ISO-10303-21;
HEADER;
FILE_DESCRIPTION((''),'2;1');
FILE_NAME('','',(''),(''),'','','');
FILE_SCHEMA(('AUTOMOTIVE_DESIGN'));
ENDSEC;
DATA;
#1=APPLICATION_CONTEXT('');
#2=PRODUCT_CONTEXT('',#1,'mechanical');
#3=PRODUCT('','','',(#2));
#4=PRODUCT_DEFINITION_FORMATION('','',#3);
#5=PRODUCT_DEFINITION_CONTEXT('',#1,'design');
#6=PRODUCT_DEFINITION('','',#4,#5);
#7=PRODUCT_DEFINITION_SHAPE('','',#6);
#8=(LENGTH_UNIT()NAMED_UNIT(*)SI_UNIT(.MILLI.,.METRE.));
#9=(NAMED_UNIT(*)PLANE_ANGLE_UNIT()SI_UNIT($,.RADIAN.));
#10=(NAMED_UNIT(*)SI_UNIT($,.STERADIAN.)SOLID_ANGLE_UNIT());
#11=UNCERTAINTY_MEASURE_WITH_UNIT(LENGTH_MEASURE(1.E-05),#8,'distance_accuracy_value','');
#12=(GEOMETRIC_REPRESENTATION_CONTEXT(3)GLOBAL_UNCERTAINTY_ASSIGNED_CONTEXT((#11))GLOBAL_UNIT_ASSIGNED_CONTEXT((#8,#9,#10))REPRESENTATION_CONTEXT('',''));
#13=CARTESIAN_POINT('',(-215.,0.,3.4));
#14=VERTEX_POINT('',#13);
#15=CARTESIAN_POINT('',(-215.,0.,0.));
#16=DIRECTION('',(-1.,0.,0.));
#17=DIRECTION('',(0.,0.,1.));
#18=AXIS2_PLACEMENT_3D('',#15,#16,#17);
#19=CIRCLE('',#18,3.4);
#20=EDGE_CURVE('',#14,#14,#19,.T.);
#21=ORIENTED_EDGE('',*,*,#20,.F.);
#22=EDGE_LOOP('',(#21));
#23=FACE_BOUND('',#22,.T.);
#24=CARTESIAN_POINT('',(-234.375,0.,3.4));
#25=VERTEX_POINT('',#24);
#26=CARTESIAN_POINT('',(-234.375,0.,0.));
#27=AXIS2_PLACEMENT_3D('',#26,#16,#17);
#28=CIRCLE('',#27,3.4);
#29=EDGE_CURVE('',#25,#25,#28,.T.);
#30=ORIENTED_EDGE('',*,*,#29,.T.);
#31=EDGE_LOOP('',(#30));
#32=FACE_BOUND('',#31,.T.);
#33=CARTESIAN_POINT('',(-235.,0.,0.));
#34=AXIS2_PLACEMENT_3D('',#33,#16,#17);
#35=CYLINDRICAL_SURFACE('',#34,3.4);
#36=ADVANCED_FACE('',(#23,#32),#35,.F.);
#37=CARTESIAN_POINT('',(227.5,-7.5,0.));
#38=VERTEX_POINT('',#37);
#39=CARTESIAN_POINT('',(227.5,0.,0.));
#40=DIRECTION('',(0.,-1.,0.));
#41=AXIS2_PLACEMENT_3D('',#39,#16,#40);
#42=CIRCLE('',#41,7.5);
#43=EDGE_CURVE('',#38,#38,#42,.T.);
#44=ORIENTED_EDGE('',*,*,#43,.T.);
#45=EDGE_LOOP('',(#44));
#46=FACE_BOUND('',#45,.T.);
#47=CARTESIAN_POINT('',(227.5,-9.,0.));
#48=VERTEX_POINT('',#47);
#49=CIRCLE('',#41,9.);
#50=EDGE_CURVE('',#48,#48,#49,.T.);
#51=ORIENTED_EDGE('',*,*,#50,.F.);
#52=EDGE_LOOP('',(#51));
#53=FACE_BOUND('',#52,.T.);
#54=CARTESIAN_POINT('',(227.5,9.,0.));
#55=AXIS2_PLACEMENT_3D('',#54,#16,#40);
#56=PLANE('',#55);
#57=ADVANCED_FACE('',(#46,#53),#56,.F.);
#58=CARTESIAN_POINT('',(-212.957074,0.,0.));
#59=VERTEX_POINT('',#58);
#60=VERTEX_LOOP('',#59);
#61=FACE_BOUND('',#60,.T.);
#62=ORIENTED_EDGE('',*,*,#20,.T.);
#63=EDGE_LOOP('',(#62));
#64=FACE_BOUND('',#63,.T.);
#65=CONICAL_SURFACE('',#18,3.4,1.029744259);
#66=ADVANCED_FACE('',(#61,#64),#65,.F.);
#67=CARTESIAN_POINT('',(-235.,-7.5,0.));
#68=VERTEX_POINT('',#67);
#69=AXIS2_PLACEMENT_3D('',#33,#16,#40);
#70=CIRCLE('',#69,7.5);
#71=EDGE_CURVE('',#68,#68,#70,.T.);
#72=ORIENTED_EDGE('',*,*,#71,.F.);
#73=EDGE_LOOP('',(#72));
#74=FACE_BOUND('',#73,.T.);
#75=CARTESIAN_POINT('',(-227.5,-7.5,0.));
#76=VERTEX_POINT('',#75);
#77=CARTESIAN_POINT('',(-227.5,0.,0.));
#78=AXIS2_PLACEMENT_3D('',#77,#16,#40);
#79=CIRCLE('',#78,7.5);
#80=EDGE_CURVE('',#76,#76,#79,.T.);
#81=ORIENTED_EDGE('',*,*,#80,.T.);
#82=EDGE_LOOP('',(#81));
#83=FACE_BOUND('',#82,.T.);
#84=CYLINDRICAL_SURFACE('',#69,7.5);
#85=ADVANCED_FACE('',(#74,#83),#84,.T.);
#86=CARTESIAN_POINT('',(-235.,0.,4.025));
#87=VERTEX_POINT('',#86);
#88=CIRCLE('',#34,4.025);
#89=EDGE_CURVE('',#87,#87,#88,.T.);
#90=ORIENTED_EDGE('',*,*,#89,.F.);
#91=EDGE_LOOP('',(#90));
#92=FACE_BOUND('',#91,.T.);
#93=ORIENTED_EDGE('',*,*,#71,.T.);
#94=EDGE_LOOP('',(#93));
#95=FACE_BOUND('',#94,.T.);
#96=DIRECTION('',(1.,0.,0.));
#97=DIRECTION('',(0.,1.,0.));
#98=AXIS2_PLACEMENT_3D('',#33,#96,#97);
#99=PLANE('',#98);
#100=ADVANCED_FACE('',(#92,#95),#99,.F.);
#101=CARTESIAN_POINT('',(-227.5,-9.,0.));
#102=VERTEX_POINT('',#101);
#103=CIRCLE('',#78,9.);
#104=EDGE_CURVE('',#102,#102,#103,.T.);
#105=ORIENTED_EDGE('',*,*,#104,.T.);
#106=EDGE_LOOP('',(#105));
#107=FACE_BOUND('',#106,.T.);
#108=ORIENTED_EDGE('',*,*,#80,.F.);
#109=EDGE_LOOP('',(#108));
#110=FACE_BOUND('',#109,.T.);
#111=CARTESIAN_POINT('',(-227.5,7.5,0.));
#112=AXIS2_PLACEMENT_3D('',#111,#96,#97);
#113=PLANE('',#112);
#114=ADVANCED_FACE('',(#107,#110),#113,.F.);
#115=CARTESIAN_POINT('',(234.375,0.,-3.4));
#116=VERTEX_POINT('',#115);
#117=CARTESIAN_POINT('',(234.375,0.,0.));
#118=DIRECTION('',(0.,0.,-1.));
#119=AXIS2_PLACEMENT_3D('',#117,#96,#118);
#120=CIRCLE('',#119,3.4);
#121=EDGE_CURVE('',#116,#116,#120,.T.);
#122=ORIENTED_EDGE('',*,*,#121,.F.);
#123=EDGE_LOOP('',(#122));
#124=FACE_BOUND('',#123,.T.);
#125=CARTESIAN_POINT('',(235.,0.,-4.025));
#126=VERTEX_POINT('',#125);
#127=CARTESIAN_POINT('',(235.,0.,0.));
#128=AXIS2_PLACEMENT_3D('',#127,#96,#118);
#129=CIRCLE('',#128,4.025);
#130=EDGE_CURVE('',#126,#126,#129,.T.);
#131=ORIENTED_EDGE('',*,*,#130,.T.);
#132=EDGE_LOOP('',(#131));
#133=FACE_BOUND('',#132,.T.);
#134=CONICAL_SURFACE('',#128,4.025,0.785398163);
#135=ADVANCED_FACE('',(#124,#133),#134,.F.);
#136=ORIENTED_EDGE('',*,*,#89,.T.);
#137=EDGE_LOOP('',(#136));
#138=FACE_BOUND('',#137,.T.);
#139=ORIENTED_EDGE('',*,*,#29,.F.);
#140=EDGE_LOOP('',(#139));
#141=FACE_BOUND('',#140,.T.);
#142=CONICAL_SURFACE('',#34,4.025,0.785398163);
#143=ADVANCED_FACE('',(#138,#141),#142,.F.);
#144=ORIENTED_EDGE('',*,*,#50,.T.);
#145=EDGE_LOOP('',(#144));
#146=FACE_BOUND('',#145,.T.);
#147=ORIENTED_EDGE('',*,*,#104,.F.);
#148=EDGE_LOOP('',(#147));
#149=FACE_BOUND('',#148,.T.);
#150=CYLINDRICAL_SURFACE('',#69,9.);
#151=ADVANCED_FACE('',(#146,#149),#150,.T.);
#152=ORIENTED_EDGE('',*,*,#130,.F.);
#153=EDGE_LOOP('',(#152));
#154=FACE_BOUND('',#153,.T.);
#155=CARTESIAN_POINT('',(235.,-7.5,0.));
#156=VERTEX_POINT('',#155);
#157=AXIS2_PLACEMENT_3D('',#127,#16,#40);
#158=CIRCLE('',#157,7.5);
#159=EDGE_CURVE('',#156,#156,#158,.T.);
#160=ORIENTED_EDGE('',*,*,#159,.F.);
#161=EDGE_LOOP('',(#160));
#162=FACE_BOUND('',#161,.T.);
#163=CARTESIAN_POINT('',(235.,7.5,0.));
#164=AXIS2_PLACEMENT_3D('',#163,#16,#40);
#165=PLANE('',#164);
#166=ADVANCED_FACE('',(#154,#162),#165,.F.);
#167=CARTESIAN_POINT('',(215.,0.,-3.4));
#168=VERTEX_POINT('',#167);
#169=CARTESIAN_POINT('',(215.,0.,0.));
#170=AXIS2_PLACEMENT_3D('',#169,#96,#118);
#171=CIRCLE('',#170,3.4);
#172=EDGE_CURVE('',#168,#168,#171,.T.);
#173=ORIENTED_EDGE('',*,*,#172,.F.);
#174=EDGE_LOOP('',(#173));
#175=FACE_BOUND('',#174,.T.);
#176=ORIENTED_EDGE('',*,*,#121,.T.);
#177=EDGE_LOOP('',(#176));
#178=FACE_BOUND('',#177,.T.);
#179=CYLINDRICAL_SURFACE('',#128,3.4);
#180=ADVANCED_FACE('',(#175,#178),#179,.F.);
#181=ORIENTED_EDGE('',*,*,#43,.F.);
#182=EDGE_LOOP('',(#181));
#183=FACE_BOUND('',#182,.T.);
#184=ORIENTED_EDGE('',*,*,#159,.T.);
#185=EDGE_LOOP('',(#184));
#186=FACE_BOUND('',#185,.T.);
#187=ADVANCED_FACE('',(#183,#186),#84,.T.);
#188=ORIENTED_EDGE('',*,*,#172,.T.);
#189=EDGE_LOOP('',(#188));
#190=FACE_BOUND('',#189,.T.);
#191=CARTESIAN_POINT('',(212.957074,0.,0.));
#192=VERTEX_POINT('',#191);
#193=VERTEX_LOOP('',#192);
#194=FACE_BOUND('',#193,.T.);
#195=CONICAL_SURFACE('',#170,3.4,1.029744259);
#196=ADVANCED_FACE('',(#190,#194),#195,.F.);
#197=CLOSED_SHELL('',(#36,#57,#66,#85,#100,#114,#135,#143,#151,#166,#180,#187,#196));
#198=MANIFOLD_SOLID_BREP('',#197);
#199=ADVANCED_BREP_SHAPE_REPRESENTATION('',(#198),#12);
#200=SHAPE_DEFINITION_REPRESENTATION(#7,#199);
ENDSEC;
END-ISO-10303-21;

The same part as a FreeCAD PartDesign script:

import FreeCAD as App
import Part
import Sketcher

V = App.Vector
Q = App.Units.Quantity

doc = App.newDocument("Part")
body = doc.addObject("PartDesign::Body", "Body")

# Sketch on XY plane
sketch1 = doc.addObject("Sketcher::SketchObject", "Sketch")
body.addObject(sketch1)
sketch1.AttachmentSupport = (doc.XY_Plane, [""])
sketch1.MapMode = "FlatFace"
sketch1.addGeometry(Part.LineSegment(V(-235, 0, 0), V(235, 0, 0)), False)
sketch1.addGeometry(Part.LineSegment(V(235, 0, 0), V(235, 7.5, 0)), False)
sketch1.addGeometry(Part.LineSegment(V(235, 7.5, 0), V(227.5, 7.5, 0)), False)
sketch1.addGeometry(Part.LineSegment(V(227.5, 7.5, 0), V(227.5, 9, 0)), False)
sketch1.addGeometry(Part.LineSegment(V(227.5, 9, 0), V(-227.5, 9, 0)), False)
sketch1.addGeometry(Part.LineSegment(V(-227.5, 9, 0), V(-227.5, 7.5, 0)), False)
sketch1.addGeometry(Part.LineSegment(V(-227.5, 7.5, 0), V(-235, 7.5, 0)), False)
sketch1.addGeometry(Part.LineSegment(V(-235, 7.5, 0), V(-235, 0, 0)), False)
sketch1.addConstraint(Sketcher.Constraint("Coincident", 0, 2, 1, 1))
sketch1.addConstraint(Sketcher.Constraint("Coincident", 1, 2, 2, 1))
sketch1.addConstraint(Sketcher.Constraint("Coincident", 2, 2, 3, 1))
sketch1.addConstraint(Sketcher.Constraint("Coincident", 3, 2, 4, 1))
sketch1.addConstraint(Sketcher.Constraint("Coincident", 4, 2, 5, 1))
sketch1.addConstraint(Sketcher.Constraint("Coincident", 5, 2, 6, 1))
sketch1.addConstraint(Sketcher.Constraint("Coincident", 6, 2, 7, 1))
sketch1.addConstraint(Sketcher.Constraint("Coincident", 7, 2, 0, 1))
sketch1.addConstraint(Sketcher.Constraint("Horizontal", 0))
sketch1.addConstraint(Sketcher.Constraint("Vertical", 1))
sketch1.addConstraint(Sketcher.Constraint("Horizontal", 2))
sketch1.addConstraint(Sketcher.Constraint("Vertical", 3))
sketch1.addConstraint(Sketcher.Constraint("Horizontal", 4))
sketch1.addConstraint(Sketcher.Constraint("Vertical", 5))
sketch1.addConstraint(Sketcher.Constraint("Horizontal", 6))
sketch1.addConstraint(Sketcher.Constraint("Vertical", 7))
sketch1.addConstraint(Sketcher.Constraint("Symmetric", 0, 2, 7, 2, -1, 1))
sketch1.addConstraint(Sketcher.Constraint("Symmetric", 2, 2, 5, 2, -2))
sketch1.addConstraint(Sketcher.Constraint("Equal", 6, 1))
sketch1.addConstraint(Sketcher.Constraint("DistanceX", 0, 1, 0, 2, Q("470 mm")))
sketch1.addConstraint(Sketcher.Constraint("DistanceX", 4, 2, 4, 1, Q("455 mm")))
sketch1.addConstraint(Sketcher.Constraint("DistanceY", 3, 1, 3, 2, Q("1.5 mm")))
revolution = doc.addObject("PartDesign::Revolution", "Revolution")
body.addObject(revolution)
revolution.Profile = sketch1
revolution.ReferenceAxis = (sketch1, ["H_Axis"])
revolution.Angle = 360

# Sketch on XZ plane
sketch2 = doc.addObject("Sketcher::SketchObject", "Sketch001")
body.addObject(sketch2)
sketch2.AttachmentSupport = (doc.XZ_Plane, [""])
sketch2.MapMode = "FlatFace"
sketch2.addGeometry(Part.LineSegment(V(213, 0, 0), V(235, 0, 0)), False)
sketch2.addGeometry(Part.LineSegment(V(235, 0, 0), V(235, -4, 0)), False)
sketch2.addGeometry(Part.LineSegment(V(235, -4, 0), V(234.4, -3.4, 0)), False)
sketch2.addGeometry(Part.LineSegment(V(234.4, -3.4, 0), V(215, -3.4, 0)), False)
sketch2.addGeometry(Part.LineSegment(V(215, -3.4, 0), V(213, 0, 0)), False)
sketch2.addConstraint(Sketcher.Constraint("Coincident", 0, 2, 1, 1))
sketch2.addConstraint(Sketcher.Constraint("Coincident", 1, 2, 2, 1))
sketch2.addConstraint(Sketcher.Constraint("Coincident", 2, 2, 3, 1))
sketch2.addConstraint(Sketcher.Constraint("Coincident", 3, 2, 4, 1))
sketch2.addConstraint(Sketcher.Constraint("Coincident", 4, 2, 0, 1))
sketch2.addConstraint(Sketcher.Constraint("Horizontal", 0))
sketch2.addConstraint(Sketcher.Constraint("Vertical", 1))
sketch2.addConstraint(Sketcher.Constraint("Horizontal", 3))
sketch2.addConstraint(Sketcher.Constraint("PointOnObject", 0, 2, -1))
sketch2.addConstraint(Sketcher.Constraint("Angle", 2, Q("135 deg")))
sketch2.addConstraint(Sketcher.Constraint("Angle", 4, Q("121 deg")))
sketch2.addConstraint(Sketcher.Constraint("DistanceX", -1, 1, 0, 2, Q("235 mm")))
sketch2.addConstraint(Sketcher.Constraint("DistanceX", -1, 1, 3, 2, Q("215 mm")))
sketch2.addConstraint(Sketcher.Constraint("DistanceY", 2, 2, -1, 1, Q("3.4 mm")))
sketch2.addConstraint(Sketcher.Constraint("DistanceX", 3, 2, 3, 1, Q("19.375 mm")))
groove = doc.addObject("PartDesign::Groove", "Groove")
body.addObject(groove)
groove.Profile = sketch2
groove.ReferenceAxis = (sketch2, ["H_Axis"])
groove.Angle = 360
doc.recompute()

mirrored = doc.addObject("PartDesign::Mirrored", "Mirrored")
body.addObject(mirrored)
mirrored.Originals = [groove]
mirrored.MirrorPlane = (doc.YZ_Plane, [""])
body.Tip = mirrored

doc.recompute()
